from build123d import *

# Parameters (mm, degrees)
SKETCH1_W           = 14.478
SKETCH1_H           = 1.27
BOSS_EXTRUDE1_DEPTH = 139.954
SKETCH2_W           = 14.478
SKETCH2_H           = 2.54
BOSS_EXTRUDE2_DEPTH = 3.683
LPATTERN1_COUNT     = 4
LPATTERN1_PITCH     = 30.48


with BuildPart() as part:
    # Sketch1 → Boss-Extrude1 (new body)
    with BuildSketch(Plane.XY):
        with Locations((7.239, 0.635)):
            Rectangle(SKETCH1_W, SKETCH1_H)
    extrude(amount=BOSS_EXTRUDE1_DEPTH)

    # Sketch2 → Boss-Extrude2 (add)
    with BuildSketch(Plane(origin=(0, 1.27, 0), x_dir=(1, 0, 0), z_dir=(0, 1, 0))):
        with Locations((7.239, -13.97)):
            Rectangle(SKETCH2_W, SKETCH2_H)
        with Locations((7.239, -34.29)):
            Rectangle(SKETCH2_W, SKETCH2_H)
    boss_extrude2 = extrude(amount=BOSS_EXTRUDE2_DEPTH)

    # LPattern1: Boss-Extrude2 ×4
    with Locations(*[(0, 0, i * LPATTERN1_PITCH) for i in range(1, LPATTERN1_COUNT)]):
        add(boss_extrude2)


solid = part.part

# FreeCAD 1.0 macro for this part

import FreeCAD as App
import Part
import Sketcher
Q = App.Units.Quantity


def add_polygon(sketch, points):
    """Adds a closed chain of lines whose ends are joined by coincident constraints."""
    first, n = sketch.GeometryCount, len(points)
    for a, b in zip(points, points[1:] + points[:1]):
        sketch.addGeometry(Part.LineSegment(App.Vector(*a, 0), App.Vector(*b, 0)), False)
    for i in range(n):
        sketch.addConstraint(Sketcher.Constraint("Coincident", first + i, 2, first + (i + 1) % n, 1))

doc = App.newDocument("Part")
body = doc.addObject("PartDesign::Body", "Body")

sketch1 = body.newObject("Sketcher::SketchObject", "Sketch")
sketch1.AttachmentSupport = (doc.getObject("XY_Plane"), [""])
sketch1.MapMode = "FlatFace"
add_polygon(sketch1, [(0, 1.3), (0, 0), (14.5, 0), (14.5, 1.3)])
sketch1.addConstraint([
    Sketcher.Constraint("Vertical", 0),
    Sketcher.Constraint("Horizontal", 1),
    Sketcher.Constraint("Vertical", 2),
    Sketcher.Constraint("Horizontal", 3),
    Sketcher.Constraint("Coincident", 0, 2, -1, 1),
    Sketcher.Constraint("DistanceX", 1, 1, 1, 2, Q("0.57 in")),
    Sketcher.Constraint("DistanceY", 0, 2, 0, 1, Q("0.05 in")),
])
pad1 = body.newObject("PartDesign::Pad", "Pad")
pad1.Profile = sketch1
pad1.Length = Q("5.51 in")

sketch2 = body.newObject("Sketcher::SketchObject", "Sketch001")
sketch2.AttachmentSupport = (doc.getObject("XZ_Plane"), [""])
sketch2.MapMode = "FlatFace"
sketch2.AttachmentOffset = App.Placement(App.Vector(0, 0, -0.05 * 25.4), App.Rotation())
add_polygon(sketch2, [(0, 12.7), (0, 15.2), (14.5, 15.2), (14.5, 12.7)])
add_polygon(sketch2, [(0, 33), (0, 35.6), (14.5, 35.6), (14.5, 33)])
sketch2.addConstraint([
    Sketcher.Constraint("Vertical", 0),
    Sketcher.Constraint("Horizontal", 1),
    Sketcher.Constraint("Vertical", 2),
    Sketcher.Constraint("Horizontal", 3),
    Sketcher.Constraint("Vertical", 4),
    Sketcher.Constraint("Horizontal", 5),
    Sketcher.Constraint("Vertical", 6),
    Sketcher.Constraint("Horizontal", 7),
    Sketcher.Constraint("PointOnObject", 0, 2, -2),
    Sketcher.Constraint("PointOnObject", 4, 2, -2),
    Sketcher.Constraint("Vertical", 2, 2, 5, 2),
    Sketcher.Constraint("Equal", 2, 4),
    Sketcher.Constraint("DistanceY", 0, 1, 0, 2, Q("0.1 in")),
    Sketcher.Constraint("DistanceX", 1, 1, 1, 2, Q("0.57 in")),
    Sketcher.Constraint("DistanceY", -1, 1, 0, 2, Q("0.6 in")),
    Sketcher.Constraint("DistanceY", -1, 1, 4, 2, Q("1.4 in")),
])
pad2 = body.newObject("PartDesign::Pad", "Pad001")
pad2.Profile = sketch2
pad2.Length = Q("0.145 in")
pad2.Reversed = True
doc.recompute()

linearpattern = body.newObject("PartDesign::LinearPattern", "LinearPattern")
linearpattern.Originals = [pad2]
linearpattern.Direction = (doc.getObject("Z_Axis"), [""])
linearpattern.Mode = "offset"
linearpattern.Offset = Q("1.2 in")
linearpattern.Occurrences = 4
body.Tip = linearpattern

doc.recompute()
